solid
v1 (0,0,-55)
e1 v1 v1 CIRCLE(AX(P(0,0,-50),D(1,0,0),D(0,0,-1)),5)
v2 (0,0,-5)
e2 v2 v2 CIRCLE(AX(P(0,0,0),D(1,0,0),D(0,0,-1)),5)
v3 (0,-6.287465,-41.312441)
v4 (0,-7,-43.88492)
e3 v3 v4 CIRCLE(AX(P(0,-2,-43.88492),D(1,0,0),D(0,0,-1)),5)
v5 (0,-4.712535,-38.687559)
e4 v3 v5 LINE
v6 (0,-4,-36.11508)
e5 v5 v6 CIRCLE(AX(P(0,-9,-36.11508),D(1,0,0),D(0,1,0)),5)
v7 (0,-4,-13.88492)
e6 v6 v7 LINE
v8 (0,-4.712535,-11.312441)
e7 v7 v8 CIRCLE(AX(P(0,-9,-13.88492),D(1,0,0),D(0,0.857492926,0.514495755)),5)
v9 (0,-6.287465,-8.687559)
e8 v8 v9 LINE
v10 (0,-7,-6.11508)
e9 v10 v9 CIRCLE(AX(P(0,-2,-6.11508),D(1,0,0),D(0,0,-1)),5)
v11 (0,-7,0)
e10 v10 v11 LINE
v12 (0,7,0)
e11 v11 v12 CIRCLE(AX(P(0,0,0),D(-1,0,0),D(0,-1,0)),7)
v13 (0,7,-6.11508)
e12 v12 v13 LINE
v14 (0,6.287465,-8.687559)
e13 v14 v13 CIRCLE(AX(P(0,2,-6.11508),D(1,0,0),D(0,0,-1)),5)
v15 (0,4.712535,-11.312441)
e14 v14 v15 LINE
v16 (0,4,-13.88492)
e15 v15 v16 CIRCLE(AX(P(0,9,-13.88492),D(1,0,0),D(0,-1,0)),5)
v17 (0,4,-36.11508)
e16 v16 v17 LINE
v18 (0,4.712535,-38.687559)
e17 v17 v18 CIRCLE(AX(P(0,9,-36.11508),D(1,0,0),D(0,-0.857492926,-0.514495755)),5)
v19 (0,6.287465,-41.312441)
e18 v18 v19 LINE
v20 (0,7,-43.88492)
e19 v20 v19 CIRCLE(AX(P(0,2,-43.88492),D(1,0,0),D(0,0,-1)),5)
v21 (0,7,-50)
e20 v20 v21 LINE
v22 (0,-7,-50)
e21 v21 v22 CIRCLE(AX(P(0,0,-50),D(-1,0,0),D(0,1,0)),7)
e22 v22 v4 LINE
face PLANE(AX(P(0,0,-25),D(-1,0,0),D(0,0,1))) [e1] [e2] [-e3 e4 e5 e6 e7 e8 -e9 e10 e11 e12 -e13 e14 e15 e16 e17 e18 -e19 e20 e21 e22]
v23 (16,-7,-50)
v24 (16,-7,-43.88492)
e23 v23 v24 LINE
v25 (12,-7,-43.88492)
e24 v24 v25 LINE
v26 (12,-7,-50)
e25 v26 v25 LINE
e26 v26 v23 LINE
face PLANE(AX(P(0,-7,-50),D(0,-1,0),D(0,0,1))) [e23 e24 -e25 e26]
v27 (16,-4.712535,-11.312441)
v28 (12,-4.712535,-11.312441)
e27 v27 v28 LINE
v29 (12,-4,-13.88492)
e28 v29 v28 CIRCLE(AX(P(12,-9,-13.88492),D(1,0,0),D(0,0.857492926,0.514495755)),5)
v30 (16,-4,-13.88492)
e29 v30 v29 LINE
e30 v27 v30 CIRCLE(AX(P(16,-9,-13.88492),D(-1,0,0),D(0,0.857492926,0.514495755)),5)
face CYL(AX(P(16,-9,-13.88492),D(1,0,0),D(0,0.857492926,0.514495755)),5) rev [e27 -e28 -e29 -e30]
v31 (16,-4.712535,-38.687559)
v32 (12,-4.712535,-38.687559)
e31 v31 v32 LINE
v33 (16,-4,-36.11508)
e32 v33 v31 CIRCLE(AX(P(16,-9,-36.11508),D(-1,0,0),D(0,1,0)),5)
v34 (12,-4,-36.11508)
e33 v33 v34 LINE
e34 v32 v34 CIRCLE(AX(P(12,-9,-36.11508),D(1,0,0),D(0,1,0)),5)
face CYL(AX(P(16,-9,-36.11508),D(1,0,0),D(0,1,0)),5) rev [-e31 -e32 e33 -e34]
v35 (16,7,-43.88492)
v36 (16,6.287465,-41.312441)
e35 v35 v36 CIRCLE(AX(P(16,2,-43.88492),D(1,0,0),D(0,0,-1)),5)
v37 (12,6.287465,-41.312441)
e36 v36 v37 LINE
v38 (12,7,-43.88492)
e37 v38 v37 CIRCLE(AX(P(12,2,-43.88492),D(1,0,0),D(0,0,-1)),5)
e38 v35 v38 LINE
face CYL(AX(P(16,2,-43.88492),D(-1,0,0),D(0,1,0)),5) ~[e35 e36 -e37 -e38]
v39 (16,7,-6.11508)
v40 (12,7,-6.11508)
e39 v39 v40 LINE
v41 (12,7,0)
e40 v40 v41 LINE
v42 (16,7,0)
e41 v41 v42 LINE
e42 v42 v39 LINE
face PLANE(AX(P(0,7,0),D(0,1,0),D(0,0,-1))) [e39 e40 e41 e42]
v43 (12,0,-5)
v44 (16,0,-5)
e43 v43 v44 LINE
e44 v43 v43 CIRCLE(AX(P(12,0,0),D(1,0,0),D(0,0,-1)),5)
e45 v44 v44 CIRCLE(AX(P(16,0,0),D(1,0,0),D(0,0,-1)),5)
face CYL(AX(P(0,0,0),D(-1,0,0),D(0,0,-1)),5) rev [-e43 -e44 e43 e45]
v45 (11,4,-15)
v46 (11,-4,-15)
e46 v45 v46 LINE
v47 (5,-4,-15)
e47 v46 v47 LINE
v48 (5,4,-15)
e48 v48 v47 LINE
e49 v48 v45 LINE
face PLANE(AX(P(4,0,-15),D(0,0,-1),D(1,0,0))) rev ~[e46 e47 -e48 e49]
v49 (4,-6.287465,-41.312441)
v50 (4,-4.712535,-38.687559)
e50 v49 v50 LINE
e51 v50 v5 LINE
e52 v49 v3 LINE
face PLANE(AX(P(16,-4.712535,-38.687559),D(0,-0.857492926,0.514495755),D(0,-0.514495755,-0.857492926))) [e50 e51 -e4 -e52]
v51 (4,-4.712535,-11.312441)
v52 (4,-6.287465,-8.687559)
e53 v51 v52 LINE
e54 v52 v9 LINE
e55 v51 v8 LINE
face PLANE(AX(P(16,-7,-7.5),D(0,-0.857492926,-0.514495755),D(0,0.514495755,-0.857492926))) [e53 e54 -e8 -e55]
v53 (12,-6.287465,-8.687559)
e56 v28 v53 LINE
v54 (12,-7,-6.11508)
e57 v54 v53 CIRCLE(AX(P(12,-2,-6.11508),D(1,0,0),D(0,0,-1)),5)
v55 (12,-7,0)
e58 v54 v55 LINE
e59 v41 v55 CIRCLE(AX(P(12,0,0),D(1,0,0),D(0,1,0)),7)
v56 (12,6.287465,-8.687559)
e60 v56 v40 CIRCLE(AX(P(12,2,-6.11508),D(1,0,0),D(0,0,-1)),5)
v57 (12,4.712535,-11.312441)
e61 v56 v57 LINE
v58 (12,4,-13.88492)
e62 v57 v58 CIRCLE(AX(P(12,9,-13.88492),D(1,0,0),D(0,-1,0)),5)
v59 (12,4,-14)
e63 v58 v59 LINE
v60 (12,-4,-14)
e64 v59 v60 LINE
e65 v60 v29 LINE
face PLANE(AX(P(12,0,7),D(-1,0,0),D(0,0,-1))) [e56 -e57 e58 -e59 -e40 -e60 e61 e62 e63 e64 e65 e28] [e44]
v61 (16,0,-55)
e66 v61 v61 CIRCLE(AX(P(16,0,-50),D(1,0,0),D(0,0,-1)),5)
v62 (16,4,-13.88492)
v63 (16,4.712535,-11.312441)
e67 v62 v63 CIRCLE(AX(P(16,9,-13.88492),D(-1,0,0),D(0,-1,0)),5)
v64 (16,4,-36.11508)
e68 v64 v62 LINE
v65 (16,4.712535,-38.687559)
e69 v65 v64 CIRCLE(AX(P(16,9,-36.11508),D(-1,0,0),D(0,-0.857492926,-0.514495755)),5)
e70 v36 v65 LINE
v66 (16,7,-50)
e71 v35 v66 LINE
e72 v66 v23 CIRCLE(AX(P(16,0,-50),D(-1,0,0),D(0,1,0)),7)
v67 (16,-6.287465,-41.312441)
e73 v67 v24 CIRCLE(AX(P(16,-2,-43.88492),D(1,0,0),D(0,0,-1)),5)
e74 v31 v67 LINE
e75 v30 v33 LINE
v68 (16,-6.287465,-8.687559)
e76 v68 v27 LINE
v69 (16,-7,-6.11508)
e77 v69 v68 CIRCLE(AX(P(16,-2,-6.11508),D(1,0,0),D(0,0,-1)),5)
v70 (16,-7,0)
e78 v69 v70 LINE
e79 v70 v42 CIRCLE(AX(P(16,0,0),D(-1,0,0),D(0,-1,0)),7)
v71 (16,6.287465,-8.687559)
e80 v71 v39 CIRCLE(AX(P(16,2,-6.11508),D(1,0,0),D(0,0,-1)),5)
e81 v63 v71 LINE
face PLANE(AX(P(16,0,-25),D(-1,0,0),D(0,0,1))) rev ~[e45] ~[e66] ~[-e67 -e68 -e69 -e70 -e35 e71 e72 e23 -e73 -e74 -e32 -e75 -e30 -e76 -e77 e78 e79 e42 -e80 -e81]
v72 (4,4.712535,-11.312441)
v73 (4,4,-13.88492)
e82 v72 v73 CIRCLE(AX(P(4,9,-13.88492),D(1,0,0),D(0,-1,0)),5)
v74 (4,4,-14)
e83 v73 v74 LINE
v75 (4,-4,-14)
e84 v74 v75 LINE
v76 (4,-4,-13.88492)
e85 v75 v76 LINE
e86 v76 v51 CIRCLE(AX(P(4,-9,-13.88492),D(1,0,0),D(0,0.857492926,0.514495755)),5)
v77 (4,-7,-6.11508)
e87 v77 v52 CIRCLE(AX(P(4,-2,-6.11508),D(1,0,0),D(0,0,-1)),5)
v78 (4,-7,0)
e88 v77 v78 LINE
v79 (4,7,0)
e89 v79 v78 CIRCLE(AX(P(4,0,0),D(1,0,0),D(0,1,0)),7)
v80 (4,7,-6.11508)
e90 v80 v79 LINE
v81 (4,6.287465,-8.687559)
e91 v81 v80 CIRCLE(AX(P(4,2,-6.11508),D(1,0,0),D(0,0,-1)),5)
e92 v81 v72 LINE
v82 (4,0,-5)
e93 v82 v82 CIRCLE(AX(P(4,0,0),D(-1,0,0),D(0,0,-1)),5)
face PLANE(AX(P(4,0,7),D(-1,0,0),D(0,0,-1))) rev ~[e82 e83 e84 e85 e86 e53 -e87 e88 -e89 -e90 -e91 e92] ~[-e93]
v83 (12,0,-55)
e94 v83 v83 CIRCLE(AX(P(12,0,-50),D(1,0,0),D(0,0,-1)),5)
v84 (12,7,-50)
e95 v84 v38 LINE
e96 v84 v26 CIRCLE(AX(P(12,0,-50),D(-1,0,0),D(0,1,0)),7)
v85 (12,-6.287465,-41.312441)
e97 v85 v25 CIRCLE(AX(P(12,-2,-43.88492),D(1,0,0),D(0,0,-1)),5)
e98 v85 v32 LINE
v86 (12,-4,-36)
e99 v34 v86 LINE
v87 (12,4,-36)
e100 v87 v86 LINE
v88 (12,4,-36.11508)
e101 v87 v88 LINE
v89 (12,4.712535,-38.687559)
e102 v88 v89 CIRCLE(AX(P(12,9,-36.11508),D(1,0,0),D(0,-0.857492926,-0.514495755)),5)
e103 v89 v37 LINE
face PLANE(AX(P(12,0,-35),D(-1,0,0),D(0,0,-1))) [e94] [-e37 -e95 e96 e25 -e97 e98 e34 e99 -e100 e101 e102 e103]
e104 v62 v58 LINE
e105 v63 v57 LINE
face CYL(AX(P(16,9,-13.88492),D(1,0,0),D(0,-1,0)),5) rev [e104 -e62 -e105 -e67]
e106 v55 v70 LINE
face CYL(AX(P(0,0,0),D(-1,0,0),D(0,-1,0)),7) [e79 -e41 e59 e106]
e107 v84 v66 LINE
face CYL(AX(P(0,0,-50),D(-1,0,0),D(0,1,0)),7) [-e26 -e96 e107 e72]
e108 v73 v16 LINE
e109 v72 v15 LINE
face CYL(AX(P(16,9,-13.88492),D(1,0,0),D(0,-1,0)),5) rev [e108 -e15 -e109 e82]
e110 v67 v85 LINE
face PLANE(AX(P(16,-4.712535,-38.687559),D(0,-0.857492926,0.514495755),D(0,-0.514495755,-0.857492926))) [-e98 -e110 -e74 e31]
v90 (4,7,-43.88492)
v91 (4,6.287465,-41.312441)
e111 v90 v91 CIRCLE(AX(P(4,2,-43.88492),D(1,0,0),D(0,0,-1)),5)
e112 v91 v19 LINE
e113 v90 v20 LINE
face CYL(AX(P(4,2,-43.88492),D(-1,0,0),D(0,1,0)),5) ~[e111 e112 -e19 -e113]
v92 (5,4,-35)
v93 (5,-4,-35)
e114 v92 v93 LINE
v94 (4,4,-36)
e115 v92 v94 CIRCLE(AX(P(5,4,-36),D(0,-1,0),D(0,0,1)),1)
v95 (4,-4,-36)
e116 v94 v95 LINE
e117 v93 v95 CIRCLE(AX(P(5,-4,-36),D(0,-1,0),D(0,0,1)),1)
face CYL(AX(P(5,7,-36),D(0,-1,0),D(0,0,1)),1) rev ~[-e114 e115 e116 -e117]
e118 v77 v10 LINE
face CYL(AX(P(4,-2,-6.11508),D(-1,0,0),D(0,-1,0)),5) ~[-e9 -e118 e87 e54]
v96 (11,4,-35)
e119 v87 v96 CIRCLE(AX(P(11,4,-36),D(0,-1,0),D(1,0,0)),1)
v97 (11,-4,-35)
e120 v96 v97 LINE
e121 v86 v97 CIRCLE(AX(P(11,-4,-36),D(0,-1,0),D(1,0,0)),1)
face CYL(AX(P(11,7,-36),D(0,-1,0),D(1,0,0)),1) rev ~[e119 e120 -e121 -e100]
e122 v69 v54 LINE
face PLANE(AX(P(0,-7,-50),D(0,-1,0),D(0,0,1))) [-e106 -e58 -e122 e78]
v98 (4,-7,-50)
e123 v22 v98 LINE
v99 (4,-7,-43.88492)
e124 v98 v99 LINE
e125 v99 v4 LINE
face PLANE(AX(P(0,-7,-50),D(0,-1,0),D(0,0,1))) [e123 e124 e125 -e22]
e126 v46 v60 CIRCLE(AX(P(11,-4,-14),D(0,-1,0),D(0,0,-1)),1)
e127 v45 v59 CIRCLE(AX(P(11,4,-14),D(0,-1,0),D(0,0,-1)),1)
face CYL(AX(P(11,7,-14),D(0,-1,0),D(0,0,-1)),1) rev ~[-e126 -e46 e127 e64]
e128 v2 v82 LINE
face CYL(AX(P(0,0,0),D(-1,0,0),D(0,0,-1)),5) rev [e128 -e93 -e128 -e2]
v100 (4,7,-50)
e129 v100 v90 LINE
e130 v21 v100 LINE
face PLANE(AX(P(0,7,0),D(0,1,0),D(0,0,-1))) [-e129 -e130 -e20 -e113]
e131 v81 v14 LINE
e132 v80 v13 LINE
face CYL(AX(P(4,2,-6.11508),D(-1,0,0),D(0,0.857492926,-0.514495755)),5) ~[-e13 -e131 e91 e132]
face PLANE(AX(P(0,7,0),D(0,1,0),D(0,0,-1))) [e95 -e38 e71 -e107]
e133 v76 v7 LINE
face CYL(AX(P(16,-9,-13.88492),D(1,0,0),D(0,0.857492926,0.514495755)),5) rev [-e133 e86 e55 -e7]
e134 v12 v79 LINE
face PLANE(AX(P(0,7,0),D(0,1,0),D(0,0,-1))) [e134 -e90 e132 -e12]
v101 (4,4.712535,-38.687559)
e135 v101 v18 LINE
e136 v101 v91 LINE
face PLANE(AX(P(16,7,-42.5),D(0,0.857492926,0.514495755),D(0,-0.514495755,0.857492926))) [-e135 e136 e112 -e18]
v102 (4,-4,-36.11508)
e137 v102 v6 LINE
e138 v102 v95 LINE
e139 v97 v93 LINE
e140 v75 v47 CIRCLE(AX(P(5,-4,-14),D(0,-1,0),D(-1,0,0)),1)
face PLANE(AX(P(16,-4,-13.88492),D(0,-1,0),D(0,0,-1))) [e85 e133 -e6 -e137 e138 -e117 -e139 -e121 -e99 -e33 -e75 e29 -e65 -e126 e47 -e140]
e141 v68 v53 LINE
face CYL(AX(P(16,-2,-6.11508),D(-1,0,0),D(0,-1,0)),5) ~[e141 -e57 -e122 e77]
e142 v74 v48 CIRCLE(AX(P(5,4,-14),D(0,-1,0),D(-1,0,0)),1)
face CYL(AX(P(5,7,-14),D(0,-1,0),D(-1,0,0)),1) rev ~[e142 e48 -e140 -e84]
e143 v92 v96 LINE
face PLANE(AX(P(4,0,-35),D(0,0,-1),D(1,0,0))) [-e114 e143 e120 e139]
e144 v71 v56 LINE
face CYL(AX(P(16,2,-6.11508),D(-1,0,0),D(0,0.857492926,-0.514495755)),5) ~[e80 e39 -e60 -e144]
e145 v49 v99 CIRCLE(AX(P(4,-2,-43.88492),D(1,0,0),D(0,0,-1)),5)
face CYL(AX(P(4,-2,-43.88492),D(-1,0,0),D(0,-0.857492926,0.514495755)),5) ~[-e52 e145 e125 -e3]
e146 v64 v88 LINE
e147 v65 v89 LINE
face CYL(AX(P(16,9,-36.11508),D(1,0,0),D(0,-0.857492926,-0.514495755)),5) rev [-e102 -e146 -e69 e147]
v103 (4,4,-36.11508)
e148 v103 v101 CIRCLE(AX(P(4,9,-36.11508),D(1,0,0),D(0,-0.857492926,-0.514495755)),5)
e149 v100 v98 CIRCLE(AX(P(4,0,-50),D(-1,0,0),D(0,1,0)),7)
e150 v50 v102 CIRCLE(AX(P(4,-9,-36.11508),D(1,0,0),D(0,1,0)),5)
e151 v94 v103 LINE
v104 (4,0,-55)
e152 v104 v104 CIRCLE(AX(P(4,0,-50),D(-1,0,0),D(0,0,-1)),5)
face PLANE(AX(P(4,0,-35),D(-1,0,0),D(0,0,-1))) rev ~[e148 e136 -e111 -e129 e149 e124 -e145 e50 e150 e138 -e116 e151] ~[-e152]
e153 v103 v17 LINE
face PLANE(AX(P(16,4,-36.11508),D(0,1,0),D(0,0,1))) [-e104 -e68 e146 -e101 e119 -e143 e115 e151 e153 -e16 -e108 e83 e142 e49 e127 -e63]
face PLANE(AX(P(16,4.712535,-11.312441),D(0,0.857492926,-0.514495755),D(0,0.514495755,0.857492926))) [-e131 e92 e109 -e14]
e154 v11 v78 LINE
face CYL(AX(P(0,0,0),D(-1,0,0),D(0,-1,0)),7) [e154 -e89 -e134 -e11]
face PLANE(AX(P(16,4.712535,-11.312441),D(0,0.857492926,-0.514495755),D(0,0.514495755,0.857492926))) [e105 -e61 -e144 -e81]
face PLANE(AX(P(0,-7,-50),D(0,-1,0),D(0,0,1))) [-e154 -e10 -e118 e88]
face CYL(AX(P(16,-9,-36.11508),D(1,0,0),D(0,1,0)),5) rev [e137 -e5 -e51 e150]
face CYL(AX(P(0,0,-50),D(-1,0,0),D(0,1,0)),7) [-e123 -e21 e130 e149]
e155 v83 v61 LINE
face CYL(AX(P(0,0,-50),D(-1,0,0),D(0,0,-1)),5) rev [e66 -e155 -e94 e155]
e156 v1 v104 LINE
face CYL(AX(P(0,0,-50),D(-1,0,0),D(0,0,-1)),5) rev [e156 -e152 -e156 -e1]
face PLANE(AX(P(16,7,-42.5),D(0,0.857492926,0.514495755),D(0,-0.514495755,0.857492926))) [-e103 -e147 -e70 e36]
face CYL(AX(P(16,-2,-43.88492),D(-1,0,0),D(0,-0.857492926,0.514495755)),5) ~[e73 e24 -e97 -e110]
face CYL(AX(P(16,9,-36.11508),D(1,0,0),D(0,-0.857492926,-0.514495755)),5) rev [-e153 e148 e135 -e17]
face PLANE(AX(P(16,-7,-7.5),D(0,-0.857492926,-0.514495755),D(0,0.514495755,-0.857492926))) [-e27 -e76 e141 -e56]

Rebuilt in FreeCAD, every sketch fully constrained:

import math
import FreeCAD as App
import Part
import Sketcher

V = App.Vector
Q = App.Units.Quantity


def edges_at(feature, points):
    """Names of the edges that pass closest to the given points."""
    edges = feature.Shape.Edges
    near = lambda p: min(range(len(edges)), key=lambda i: edges[i].distToShape(Part.Vertex(*p))[0])
    return sorted({f"Edge{near(p) + 1}" for p in points})


def add_polygon(sketch, points):
    """Adds a closed chain of lines whose ends are joined by coincident constraints."""
    first, n = sketch.GeometryCount, len(points)
    for a, b in zip(points, points[1:] + points[:1]):
        sketch.addGeometry(Part.LineSegment(App.Vector(*a, 0), App.Vector(*b, 0)), False)
    for i in range(n):
        sketch.addConstraint(Sketcher.Constraint("Coincident", first + i, 2, first + (i + 1) % n, 1))

doc = App.newDocument("Part")
body = doc.addObject("PartDesign::Body", "Body")

sketch1 = body.newObject("Sketcher::SketchObject", "Sketch")
sketch1.AttachmentSupport = (doc.getObject("YZ_Plane"), [""])
sketch1.MapMode = "FlatFace"
sketch1.addGeometry([
    Part.LineSegment(V(7, -50, 0), V(7, 0, 0)),
    Part.ArcOfCircle(Part.Circle(V(0, 0, 0), V(0, 0, 1), 7), math.radians(0), math.radians(180)),
    Part.LineSegment(V(-7, 0, 0), V(-7, -50, 0)),
    Part.ArcOfCircle(Part.Circle(V(0, -50, 0), V(0, 0, 1), 7), math.radians(180), math.radians(360)),
    Part.Circle(V(0, -50, 0), V(0, 0, 1), 5),
    Part.Circle(V(0, 0, 0), V(0, 0, 1), 5),
], False)
sketch1.addConstraint([
    Sketcher.Constraint("Tangent", 0, 2, 1, 1),
    Sketcher.Constraint("Tangent", 1, 2, 2, 1),
    Sketcher.Constraint("Tangent", 2, 2, 3, 1),
    Sketcher.Constraint("Tangent", 3, 2, 0, 1),
    Sketcher.Constraint("Vertical", 0),
    Sketcher.Constraint("Vertical", 2),
    Sketcher.Constraint("Coincident", 1, 3, -1, 1),
    Sketcher.Constraint("Coincident", 5, 3, -1, 1),
    Sketcher.Constraint("Coincident", 4, 3, 3, 3),
    Sketcher.Constraint("Equal", 4, 5),
    Sketcher.Constraint("Diameter", 4, Q("10 mm")),
    Sketcher.Constraint("Radius", 1, Q("7 mm")),
    Sketcher.Constraint("DistanceY", 0, 1, 0, 2, Q("50 mm")),
])
pad1 = body.newObject("PartDesign::Pad", "Pad")
pad1.Profile = sketch1
pad1.Length = 16

sketch2 = body.newObject("Sketcher::SketchObject", "Sketch001")
sketch2.AttachmentSupport = (doc.getObject("XZ_Plane"), [""])
sketch2.MapMode = "FlatFace"
add_polygon(sketch2, [(4, -15), (4, 7), (12, 7), (12, -15)])
add_polygon(sketch2, [(4, -57), (4, -35), (12, -35), (12, -57)])
sketch2.addConstraint([
    Sketcher.Constraint("Vertical", 0),
    Sketcher.Constraint("Horizontal", 1),
    Sketcher.Constraint("Vertical", 2),
    Sketcher.Constraint("Horizontal", 3),
    Sketcher.Constraint("Vertical", 4),
    Sketcher.Constraint("Horizontal", 5),
    Sketcher.Constraint("Vertical", 6),
    Sketcher.Constraint("Horizontal", 7),
    Sketcher.Constraint("Vertical", 3, 2, 4, 2),
    Sketcher.Constraint("Vertical", 2, 2, 5, 2),
    Sketcher.Constraint("Equal", 2, 4),
    Sketcher.Constraint("DistanceX", 1, 1, 1, 2, Q("8 mm")),
    Sketcher.Constraint("DistanceY", 0, 1, 0, 2, Q("22 mm")),
    Sketcher.Constraint("DistanceX", -1, 1, 0, 2, Q("4 mm")),
    Sketcher.Constraint("DistanceY", -1, 1, 0, 2, Q("7 mm")),
    Sketcher.Constraint("DistanceY", 4, 2, -1, 1, Q("35 mm")),
])
pocket1 = body.newObject("PartDesign::Pocket", "Pocket")
pocket1.Profile = sketch2
pocket1.Type = "ThroughAll"
pocket1.Midplane = True
doc.recompute()

fillet = body.newObject("PartDesign::Fillet", "Fillet")
fillet.Base = (pocket1, edges_at(pocket1, [
    (12, 0, -15),
    (4, 0, -15),
    (4, 0, -35),
    (12, 0, -35),
]))
fillet.Radius = 1

sketch3 = body.newObject("Sketcher::SketchObject", "Sketch002")
sketch3.AttachmentSupport = (doc.getObject("YZ_Plane"), [""])
sketch3.MapMode = "FlatFace"
sketch3.AttachmentOffset = App.Placement(V(0, 0, 16), App.Rotation())
sketch3.addGeometry([
    Part.LineSegment(V(-4, -36.1, 0), V(-4, -13.9, 0)),
    Part.ArcOfCircle(Part.Circle(V(-9, -13.9, 0), V(0, 0, 1), 5), math.radians(0), math.radians(31)),
    Part.LineSegment(V(-4.7, -11.3, 0), V(-7, -7.5, 0)),
    Part.LineSegment(V(-7, -7.5, 0), V(-7, -42.5, 0)),
    Part.LineSegment(V(-7, -42.5, 0), V(-4.7, -38.7, 0)),
    Part.ArcOfCircle(Part.Circle(V(-9, -36.1, 0), V(0, 0, 1), 5), math.radians(-31), math.radians(0)),
    Part.LineSegment(V(7, -7.5, 0), V(4.7, -11.3, 0)),
    Part.ArcOfCircle(Part.Circle(V(9, -13.9, 0), V(0, 0, 1), 5), math.radians(149), math.radians(180)),
    Part.LineSegment(V(4, -13.9, 0), V(4, -36.1, 0)),
    Part.ArcOfCircle(Part.Circle(V(9, -36.1, 0), V(0, 0, 1), 5), math.radians(180), math.radians(211)),
    Part.LineSegment(V(4.7, -38.7, 0), V(7, -42.5, 0)),
    Part.LineSegment(V(7, -42.5, 0), V(7, -7.5, 0)),
], False)
sketch3.addConstraint([
    Sketcher.Constraint("Tangent", 0, 2, 1, 1),
    Sketcher.Constraint("Tangent", 1, 2, 2, 1),
    Sketcher.Constraint("Coincident", 2, 2, 3, 1),
    Sketcher.Constraint("Coincident", 3, 2, 4, 1),
    Sketcher.Constraint("Tangent", 4, 2, 5, 1),
    Sketcher.Constraint("Tangent", 5, 2, 0, 1),
    Sketcher.Constraint("Tangent", 6, 2, 7, 1),
    Sketcher.Constraint("Tangent", 7, 2, 8, 1),
    Sketcher.Constraint("Tangent", 8, 2, 9, 1),
    Sketcher.Constraint("Tangent", 9, 2, 10, 1),
    Sketcher.Constraint("Coincident", 10, 2, 11, 1),
    Sketcher.Constraint("Coincident", 11, 2, 6, 1),
    Sketcher.Constraint("Vertical", 0),
    Sketcher.Constraint("Vertical", 3),
    Sketcher.Constraint("Vertical", 8),
    Sketcher.Constraint("Vertical", 11),
    Sketcher.Constraint("Equal", 1, 5),
    Sketcher.Constraint("Equal", 5, 7),
    Sketcher.Constraint("Equal", 7, 9),
    Sketcher.Constraint("Symmetric", 1, 3, 7, 3, -2),
    Sketcher.Constraint("Symmetric", 4, 2, 9, 2, -2),
    Sketcher.Constraint("Symmetric", 2, 2, 11, 2, -2),
    Sketcher.Constraint("Parallel", 4, 6),
    Sketcher.Constraint("Radius", 1, Q("5 mm")),
    Sketcher.Constraint("DistanceY", 3, 2, 3, 1, Q("35 mm")),
    Sketcher.Constraint("DistanceX", 1, 3, -1, 1, Q("9 mm")),
    Sketcher.Constraint("DistanceX", 2, 2, -1, 1, Q("7 mm")),
    Sketcher.Constraint("DistanceY", 2, 2, -1, 1, Q("7.5 mm")),
    Sketcher.Constraint("DistanceY", 0, 1, 0, 2, Q("22.23016 mm")),
])
pocket2 = body.newObject("PartDesign::Pocket", "Pocket001")
pocket2.Profile = sketch3
pocket2.Type = "ThroughAll"
doc.recompute()

fillet2 = body.newObject("PartDesign::Fillet", "Fillet001")
fillet2.Base = (pocket2, edges_at(pocket2, [
    (2, -7, -7.5),
    (14, -7, -7.5),
    (14, -7, -42.5),
    (2, -7, -42.5),
    (2, 7, -42.5),
    (14, 7, -42.5),
    (2, 7, -7.5),
    (14, 7, -7.5),
]))
fillet2.Radius = 5

doc.recompute()
